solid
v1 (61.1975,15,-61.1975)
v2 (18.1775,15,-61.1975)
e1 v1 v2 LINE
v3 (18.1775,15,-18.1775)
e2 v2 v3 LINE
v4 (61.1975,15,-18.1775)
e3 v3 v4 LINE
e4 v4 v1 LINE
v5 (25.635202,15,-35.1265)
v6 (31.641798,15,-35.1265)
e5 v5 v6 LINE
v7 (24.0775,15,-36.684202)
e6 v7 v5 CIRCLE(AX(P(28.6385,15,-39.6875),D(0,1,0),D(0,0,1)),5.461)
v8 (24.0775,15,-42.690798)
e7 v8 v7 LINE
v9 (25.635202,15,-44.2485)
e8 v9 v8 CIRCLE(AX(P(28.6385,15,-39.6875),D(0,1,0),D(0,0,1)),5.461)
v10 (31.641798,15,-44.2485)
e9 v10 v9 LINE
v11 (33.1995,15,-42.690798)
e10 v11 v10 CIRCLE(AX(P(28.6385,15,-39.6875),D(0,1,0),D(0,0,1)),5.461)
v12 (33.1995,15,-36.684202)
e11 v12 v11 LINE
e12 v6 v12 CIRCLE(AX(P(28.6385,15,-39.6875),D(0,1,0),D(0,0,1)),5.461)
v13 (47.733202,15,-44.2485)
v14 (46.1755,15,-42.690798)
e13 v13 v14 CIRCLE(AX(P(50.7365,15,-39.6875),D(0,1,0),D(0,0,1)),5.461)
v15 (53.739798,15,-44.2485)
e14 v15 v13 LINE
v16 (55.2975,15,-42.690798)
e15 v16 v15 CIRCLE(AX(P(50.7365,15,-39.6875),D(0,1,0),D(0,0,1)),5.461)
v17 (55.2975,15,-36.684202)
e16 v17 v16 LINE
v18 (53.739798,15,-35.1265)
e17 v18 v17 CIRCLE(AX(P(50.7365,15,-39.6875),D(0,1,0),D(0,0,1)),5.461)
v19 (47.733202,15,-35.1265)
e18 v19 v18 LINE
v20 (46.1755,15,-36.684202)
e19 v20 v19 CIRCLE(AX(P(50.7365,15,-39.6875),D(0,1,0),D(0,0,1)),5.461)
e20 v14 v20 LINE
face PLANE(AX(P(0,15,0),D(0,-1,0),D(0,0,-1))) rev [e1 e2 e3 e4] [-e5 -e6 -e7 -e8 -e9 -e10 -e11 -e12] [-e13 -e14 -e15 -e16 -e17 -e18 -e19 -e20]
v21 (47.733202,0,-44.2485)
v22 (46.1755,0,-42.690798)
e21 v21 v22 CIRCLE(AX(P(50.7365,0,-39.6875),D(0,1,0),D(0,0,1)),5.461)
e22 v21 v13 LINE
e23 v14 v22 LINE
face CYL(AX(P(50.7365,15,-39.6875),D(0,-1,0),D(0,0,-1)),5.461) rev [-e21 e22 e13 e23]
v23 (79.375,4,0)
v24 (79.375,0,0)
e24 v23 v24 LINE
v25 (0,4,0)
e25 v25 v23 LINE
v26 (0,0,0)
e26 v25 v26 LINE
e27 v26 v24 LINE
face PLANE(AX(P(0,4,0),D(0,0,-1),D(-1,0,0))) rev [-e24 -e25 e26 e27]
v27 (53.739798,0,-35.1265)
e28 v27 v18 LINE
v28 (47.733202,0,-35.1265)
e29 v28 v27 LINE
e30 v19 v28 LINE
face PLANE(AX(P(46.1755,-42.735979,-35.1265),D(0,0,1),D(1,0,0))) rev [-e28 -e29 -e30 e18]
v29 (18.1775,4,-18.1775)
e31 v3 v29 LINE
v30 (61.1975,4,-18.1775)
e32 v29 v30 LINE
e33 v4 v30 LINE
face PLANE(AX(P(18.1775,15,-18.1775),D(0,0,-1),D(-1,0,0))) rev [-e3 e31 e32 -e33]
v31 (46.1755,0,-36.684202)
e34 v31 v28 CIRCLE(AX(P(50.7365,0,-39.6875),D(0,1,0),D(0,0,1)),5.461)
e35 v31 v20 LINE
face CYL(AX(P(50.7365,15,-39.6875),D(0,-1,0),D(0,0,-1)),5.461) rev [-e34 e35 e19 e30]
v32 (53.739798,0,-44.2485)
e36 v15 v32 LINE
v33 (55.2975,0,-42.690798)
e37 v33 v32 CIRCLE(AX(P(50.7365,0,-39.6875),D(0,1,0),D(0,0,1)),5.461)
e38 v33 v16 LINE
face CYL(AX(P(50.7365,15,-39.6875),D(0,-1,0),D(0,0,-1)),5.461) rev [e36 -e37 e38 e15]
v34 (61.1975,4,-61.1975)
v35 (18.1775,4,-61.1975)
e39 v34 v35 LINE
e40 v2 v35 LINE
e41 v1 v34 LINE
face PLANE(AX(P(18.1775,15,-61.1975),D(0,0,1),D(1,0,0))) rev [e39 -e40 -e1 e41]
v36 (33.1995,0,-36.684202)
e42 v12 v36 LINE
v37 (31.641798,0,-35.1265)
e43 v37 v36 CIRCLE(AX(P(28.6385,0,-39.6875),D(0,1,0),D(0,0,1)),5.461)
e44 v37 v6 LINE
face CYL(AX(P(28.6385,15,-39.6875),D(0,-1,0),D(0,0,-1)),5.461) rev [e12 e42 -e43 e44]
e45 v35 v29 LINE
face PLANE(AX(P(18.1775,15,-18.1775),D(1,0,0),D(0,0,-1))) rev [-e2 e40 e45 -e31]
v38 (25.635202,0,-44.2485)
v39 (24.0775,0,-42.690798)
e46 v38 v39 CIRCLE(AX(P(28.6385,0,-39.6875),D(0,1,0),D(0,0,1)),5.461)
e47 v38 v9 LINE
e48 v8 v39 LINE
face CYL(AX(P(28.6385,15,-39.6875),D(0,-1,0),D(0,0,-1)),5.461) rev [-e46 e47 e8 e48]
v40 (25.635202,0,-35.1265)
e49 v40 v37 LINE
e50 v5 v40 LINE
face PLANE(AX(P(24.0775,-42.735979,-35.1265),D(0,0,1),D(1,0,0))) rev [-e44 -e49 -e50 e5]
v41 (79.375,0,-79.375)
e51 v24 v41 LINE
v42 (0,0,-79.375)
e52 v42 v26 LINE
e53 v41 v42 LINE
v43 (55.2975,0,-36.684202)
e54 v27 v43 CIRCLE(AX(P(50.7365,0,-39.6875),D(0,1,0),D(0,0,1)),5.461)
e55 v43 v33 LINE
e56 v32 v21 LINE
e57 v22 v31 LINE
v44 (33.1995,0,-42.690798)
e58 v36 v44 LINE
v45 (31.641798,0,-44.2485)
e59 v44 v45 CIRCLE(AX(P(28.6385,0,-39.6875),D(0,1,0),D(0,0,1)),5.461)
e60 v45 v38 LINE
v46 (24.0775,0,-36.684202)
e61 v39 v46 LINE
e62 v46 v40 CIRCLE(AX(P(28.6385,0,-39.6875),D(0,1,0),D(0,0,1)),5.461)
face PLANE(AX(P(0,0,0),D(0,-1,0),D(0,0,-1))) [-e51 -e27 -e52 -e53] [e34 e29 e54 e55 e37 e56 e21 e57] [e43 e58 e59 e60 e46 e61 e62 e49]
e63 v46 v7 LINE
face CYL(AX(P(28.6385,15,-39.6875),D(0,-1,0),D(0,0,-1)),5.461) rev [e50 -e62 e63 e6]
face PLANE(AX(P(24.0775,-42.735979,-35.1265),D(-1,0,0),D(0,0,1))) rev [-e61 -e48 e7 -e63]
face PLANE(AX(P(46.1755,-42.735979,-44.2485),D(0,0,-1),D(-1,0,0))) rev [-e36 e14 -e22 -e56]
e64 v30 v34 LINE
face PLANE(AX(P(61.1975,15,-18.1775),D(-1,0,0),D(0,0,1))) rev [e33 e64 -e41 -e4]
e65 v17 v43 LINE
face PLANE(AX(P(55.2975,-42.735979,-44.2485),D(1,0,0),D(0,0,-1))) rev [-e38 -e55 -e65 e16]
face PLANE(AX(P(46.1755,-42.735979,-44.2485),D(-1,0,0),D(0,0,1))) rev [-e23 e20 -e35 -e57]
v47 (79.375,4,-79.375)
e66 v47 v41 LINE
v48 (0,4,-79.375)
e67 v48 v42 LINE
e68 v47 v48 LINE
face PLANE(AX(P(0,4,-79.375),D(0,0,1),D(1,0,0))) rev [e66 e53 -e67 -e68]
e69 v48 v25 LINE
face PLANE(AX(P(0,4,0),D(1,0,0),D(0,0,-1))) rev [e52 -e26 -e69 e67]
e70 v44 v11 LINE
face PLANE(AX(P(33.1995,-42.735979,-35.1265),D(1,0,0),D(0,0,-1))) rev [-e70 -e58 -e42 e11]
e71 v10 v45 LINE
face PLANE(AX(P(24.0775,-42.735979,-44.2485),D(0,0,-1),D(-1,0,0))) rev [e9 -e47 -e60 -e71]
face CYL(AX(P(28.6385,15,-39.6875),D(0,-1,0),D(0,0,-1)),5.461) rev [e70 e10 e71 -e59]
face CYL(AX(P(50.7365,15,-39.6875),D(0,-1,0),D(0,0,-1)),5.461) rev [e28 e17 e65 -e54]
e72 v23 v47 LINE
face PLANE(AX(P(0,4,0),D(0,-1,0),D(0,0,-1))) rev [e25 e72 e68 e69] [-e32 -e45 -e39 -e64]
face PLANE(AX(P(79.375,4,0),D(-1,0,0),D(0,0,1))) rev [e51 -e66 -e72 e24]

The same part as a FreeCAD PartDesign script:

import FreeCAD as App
import Part
import Sketcher
from FreeCAD import Vector

doc = App.newDocument("Part")
body = doc.addObject("PartDesign::Body", "Body")

sketch1 = body.newObject("Sketcher::SketchObject", "Sketch")
sketch1.AttachmentSupport = (doc.getObject("XZ_Plane"), [""])
sketch1.MapMode = "FlatFace"
sketch1.addGeometry([
    Part.LineSegment(Vector(0, -79.375, 0), Vector(0, 0, 0)),
    Part.LineSegment(Vector(0, 0, 0), Vector(79.375, 0, 0)),
    Part.LineSegment(Vector(79.375, 0, 0), Vector(79.375, -79.375, 0)),
    Part.LineSegment(Vector(79.375, -79.375, 0), Vector(0, -79.375, 0)),
], False)
sketch1.addConstraint([
    Sketcher.Constraint("Coincident", 0, 2, 1, 1),
    Sketcher.Constraint("Coincident", 1, 2, 2, 1),
    Sketcher.Constraint("Coincident", 2, 2, 3, 1),
    Sketcher.Constraint("Coincident", 3, 2, 0, 1),
    Sketcher.Constraint("Vertical", 0),
    Sketcher.Constraint("Horizontal", 1),
    Sketcher.Constraint("Vertical", 2),
    Sketcher.Constraint("Horizontal", 3),
    Sketcher.Constraint("Coincident", 0, 2, -1, 1),
    Sketcher.Constraint("Equal", 3, 0),
    Sketcher.Constraint("DistanceX", 1, 1, 1, 2, 79.375),
])
pad1 = body.newObject("PartDesign::Pad", "Pad")
pad1.Profile = sketch1
pad1.Length = 4
pad1.Reversed = True

sketch2 = body.newObject("Sketcher::SketchObject", "Sketch001")
sketch2.AttachmentSupport = (doc.getObject("XZ_Plane"), [""])
sketch2.MapMode = "FlatFace"
sketch2.AttachmentOffset = App.Placement(Vector(0, 0, -4), App.Rotation())
sketch2.addGeometry([
    Part.LineSegment(Vector(18.1775, -61.1975, 0), Vector(18.1775, -18.1775, 0)),
    Part.LineSegment(Vector(18.1775, -18.1775, 0), Vector(61.1975, -18.1775, 0)),
    Part.LineSegment(Vector(61.1975, -18.1775, 0), Vector(61.1975, -61.1975, 0)),
    Part.LineSegment(Vector(61.1975, -61.1975, 0), Vector(18.1775, -61.1975, 0)),
    Part.Circle(Vector(28.6385, -39.6875, 0), Vector(0, 0, 1), 5.461),
    Part.Circle(Vector(50.7365, -39.6875, 0), Vector(0, 0, 1), 5.461),
], False)
sketch2.addConstraint([
    Sketcher.Constraint("Coincident", 0, 2, 1, 1),
    Sketcher.Constraint("Coincident", 1, 2, 2, 1),
    Sketcher.Constraint("Coincident", 2, 2, 3, 1),
    Sketcher.Constraint("Coincident", 3, 2, 0, 1),
    Sketcher.Constraint("Vertical", 0),
    Sketcher.Constraint("Horizontal", 1),
    Sketcher.Constraint("Vertical", 2),
    Sketcher.Constraint("Horizontal", 3),
    Sketcher.Constraint("Equal", 4, 5),
    Sketcher.Constraint("Horizontal", 4, 3, 5, 3),
    Sketcher.Constraint("Equal", 3, 0),
    Sketcher.Constraint("Diameter", 4, 10.922),
    Sketcher.Constraint("DistanceX", 1, 1, 1, 2, 43.02),
    Sketcher.Constraint("DistanceY", 4, 3, 0, 2, 21.51),
    Sketcher.Constraint("DistanceX", 4, 3, 5, 3, 22.098),
    Sketcher.Constraint("DistanceX", 0, 2, 4, 3, 10.461),
    Sketcher.Constraint("DistanceX", -1, 1, 4, 3, 28.6385),
    Sketcher.Constraint("DistanceY", 4, 3, -1, 1, 39.6875),
])
pad2 = body.newObject("PartDesign::Pad", "Pad001")
pad2.Profile = sketch2
pad2.Length = 11
pad2.Reversed = True

sketch3 = body.newObject("Sketcher::SketchObject", "Sketch002")
sketch3.AttachmentSupport = (doc.getObject("XZ_Plane"), [""])
sketch3.MapMode = "FlatFace"
sketch3.AttachmentOffset = App.Placement(Vector(0, 0, -15), App.Rotation())
sketch3.addGeometry([
    Part.Circle(Vector(28.6385, -39.6875, 0), Vector(0, 0, 1), 5.461),
    Part.Circle(Vector(50.7365, -39.6875, 0), Vector(0, 0, 1), 5.461),
], False)
sketch3.addConstraint([
    Sketcher.Constraint("Equal", 0, 1),
    Sketcher.Constraint("Horizontal", 0, 3, 1, 3),
    Sketcher.Constraint("Diameter", 0, 10.922),
    Sketcher.Constraint("DistanceX", 0, 3, 1, 3, 22.098),
    Sketcher.Constraint("DistanceX", -1, 1, 0, 3, 28.6385),
    Sketcher.Constraint("DistanceY", 0, 3, -1, 1, 39.6875),
])
pocket1 = body.newObject("PartDesign::Pocket", "Pocket")
pocket1.Profile = sketch3
pocket1.Type = "ThroughAll"
pocket1.Midplane = True

sketch4 = body.newObject("Sketcher::SketchObject", "Sketch003")
sketch4.AttachmentSupport = (doc.getObject("XZ_Plane"), [""])
sketch4.MapMode = "FlatFace"
sketch4.AttachmentOffset = App.Placement(Vector(0, 0, -15), App.Rotation())
sketch4.addGeometry([
    Part.LineSegment(Vector(20.325157, -47.782059, 0), Vector(20.325157, -29.879898, 0)),
    Part.LineSegment(Vector(20.325157, -29.879898, 0), Vector(59.130781, -29.879898, 0)),
    Part.LineSegment(Vector(59.130781, -29.879898, 0), Vector(59.130781, -47.782059, 0)),
    Part.LineSegment(Vector(59.130781, -47.782059, 0), Vector(20.325157, -47.782059, 0)),
    Part.LineSegment(Vector(33.1995, -35.1265, 0), Vector(24.0775, -35.1265, 0)),
    Part.LineSegment(Vector(24.0775, -35.1265, 0), Vector(24.0775, -44.2485, 0)),
    Part.LineSegment(Vector(24.0775, -44.2485, 0), Vector(33.1995, -44.2485, 0)),
    Part.LineSegment(Vector(33.1995, -44.2485, 0), Vector(33.1995, -35.1265, 0)),
    Part.LineSegment(Vector(55.2975, -35.1265, 0), Vector(46.1755, -35.1265, 0)),
    Part.LineSegment(Vector(46.1755, -35.1265, 0), Vector(46.1755, -44.2485, 0)),
    Part.LineSegment(Vector(46.1755, -44.2485, 0), Vector(55.2975, -44.2485, 0)),
    Part.LineSegment(Vector(55.2975, -44.2485, 0), Vector(55.2975, -35.1265, 0)),
], False)
sketch4.addConstraint([
    Sketcher.Constraint("Coincident", 0, 2, 1, 1),
    Sketcher.Constraint("Coincident", 1, 2, 2, 1),
    Sketcher.Constraint("Coincident", 2, 2, 3, 1),
    Sketcher.Constraint("Coincident", 3, 2, 0, 1),
    Sketcher.Constraint("Coincident", 4, 2, 5, 1),
    Sketcher.Constraint("Coincident", 5, 2, 6, 1),
    Sketcher.Constraint("Coincident", 6, 2, 7, 1),
    Sketcher.Constraint("Coincident", 7, 2, 4, 1),
    Sketcher.Constraint("Coincident", 8, 2, 9, 1),
    Sketcher.Constraint("Coincident", 9, 2, 10, 1),
    Sketcher.Constraint("Coincident", 10, 2, 11, 1),
    Sketcher.Constraint("Coincident", 11, 2, 8, 1),
    Sketcher.Constraint("Vertical", 0),
    Sketcher.Constraint("Horizontal", 1),
    Sketcher.Constraint("Vertical", 2),
    Sketcher.Constraint("Horizontal", 3),
    Sketcher.Constraint("Horizontal", 4),
    Sketcher.Constraint("Vertical", 5),
    Sketcher.Constraint("Horizontal", 6),
    Sketcher.Constraint("Vertical", 7),
    Sketcher.Constraint("Horizontal", 8),
    Sketcher.Constraint("Vertical", 9),
    Sketcher.Constraint("Horizontal", 10),
    Sketcher.Constraint("Vertical", 11),
    Sketcher.Constraint("Horizontal", 7, 2, 8, 2),
    Sketcher.Constraint("Horizontal", 6, 2, 9, 2),
    Sketcher.Constraint("Equal", 6, 8),
    Sketcher.Constraint("Equal", 10, 5),
    Sketcher.Constraint("DistanceX", 4, 2, 4, 1, 9.122),
    Sketcher.Constraint("DistanceX", 7, 2, 8, 2, 12.976),
    Sketcher.Constraint("DistanceY", 0, 1, 0, 2, 17.902161),
    Sketcher.Constraint("DistanceY", 0, 2, -1, 1, 29.879898),
    Sketcher.Constraint("DistanceX", -1, 1, 4, 2, 24.0775),
    Sketcher.Constraint("DistanceY", 4, 2, -1, 1, 35.1265),
    Sketcher.Constraint("DistanceX", 1, 1, 1, 2, 38.805624),
    Sketcher.Constraint("DistanceX", -1, 1, 1, 2, 59.130781),
])
pad3 = body.newObject("PartDesign::Pad", "Pad002")
pad3.Profile = sketch4
pad3.Length = 15

doc.recompute()
